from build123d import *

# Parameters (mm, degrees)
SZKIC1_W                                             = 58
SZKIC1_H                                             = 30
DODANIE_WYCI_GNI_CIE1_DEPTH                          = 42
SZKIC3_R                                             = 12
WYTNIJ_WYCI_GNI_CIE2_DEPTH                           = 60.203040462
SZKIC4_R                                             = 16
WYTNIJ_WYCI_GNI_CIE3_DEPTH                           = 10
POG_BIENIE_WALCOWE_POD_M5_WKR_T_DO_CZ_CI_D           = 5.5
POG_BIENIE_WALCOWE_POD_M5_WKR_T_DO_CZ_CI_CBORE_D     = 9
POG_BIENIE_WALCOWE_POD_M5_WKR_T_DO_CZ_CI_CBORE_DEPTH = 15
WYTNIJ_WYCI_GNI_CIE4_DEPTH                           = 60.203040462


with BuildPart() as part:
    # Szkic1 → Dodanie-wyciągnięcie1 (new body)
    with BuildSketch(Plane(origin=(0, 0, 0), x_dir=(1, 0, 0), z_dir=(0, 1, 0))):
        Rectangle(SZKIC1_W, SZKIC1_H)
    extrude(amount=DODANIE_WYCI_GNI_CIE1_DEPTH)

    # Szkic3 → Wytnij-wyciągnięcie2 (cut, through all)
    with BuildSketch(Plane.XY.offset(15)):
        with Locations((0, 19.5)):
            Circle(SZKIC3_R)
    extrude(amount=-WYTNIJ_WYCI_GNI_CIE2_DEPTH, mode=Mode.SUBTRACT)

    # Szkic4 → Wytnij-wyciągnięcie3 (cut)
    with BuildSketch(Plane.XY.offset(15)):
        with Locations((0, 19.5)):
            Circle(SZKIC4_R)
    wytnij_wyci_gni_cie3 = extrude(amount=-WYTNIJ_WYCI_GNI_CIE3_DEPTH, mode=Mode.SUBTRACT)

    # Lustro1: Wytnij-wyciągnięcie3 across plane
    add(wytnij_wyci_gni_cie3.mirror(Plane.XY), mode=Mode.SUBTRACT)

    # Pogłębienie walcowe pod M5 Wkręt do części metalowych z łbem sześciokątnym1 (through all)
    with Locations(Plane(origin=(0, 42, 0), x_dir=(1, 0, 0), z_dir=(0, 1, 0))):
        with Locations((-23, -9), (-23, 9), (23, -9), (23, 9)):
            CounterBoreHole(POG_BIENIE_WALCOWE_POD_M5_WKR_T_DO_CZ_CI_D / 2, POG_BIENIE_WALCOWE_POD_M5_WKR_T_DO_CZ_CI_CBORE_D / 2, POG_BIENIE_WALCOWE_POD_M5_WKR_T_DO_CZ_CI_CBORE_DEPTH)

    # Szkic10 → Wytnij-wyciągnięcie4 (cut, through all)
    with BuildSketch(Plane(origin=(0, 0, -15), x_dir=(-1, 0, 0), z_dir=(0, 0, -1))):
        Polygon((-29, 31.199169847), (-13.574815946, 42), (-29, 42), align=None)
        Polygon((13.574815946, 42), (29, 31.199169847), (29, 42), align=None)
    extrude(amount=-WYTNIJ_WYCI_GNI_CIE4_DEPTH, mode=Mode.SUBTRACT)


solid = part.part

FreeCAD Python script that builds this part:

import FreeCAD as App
import Part
import Sketcher

V = App.Vector
Q = App.Units.Quantity

doc = App.newDocument("Part")
params = doc.addObject("Spreadsheet::Sheet", "Params")
for row, (alias, value) in enumerate([
    ("sketch1_width", "58 mm"),
    ("sketch1_height", "30 mm"),
    ("pad1_length", "42 mm"),
    ("sketch2_diameter", "24 mm"),
    ("sketch3_diameter", "32 mm"),
    ("pocket2_length", "10 mm"),
    ("sketch4_diameter", "5.5 mm"),
    ("hole_diameter", "5.5 mm"),
    ("hole_cbore_diameter", "9 mm"),
    ("hole_cbore_depth", "15 mm"),
], start=1):
    params.set(f"A{row}", alias)
    params.set(f"B{row}", "=" + value)
    params.setAlias(f"B{row}", alias)

body = doc.addObject("PartDesign::Body", "Body")

sketch1 = body.newObject("Sketcher::SketchObject", "Sketch")
sketch1.AttachmentSupport = (doc.getObject("XZ_Plane"), [""])
sketch1.MapMode = "FlatFace"
sketch1.addGeometry([
    Part.LineSegment(V(-29, -15, 0), V(-29, 15, 0)),
    Part.LineSegment(V(-29, 15, 0), V(29, 15, 0)),
    Part.LineSegment(V(29, 15, 0), V(29, -15, 0)),
    Part.LineSegment(V(29, -15, 0), V(-29, -15, 0)),
], False)
sketch1.addConstraint([
    Sketcher.Constraint("Coincident", 0, 2, 1, 1),
    Sketcher.Constraint("Coincident", 1, 2, 2, 1),
    Sketcher.Constraint("Coincident", 2, 2, 3, 1),
    Sketcher.Constraint("Coincident", 3, 2, 0, 1),
    Sketcher.Constraint("Vertical", 0),
    Sketcher.Constraint("Horizontal", 1),
    Sketcher.Constraint("Vertical", 2),
    Sketcher.Constraint("Horizontal", 3),
    Sketcher.Constraint("Symmetric", 0, 2, 2, 2, -1, 1),
    Sketcher.Constraint("DistanceX", 1, 1, 1, 2, 58.0),
    Sketcher.Constraint("DistanceY", 0, 1, 0, 2, 30.0),
])
sketch1.setExpression("Constraints[9]", "Params.sketch1_width")
sketch1.setExpression("Constraints[10]", "Params.sketch1_height")
pad1 = body.newObject("PartDesign::Pad", "Pad")
pad1.Profile = sketch1
pad1.setExpression("Length", "Params.pad1_length")
pad1.Reversed = True

sketch2 = body.newObject("Sketcher::SketchObject", "Sketch001")
sketch2.AttachmentSupport = (doc.getObject("XY_Plane"), [""])
sketch2.MapMode = "FlatFace"
sketch2.AttachmentOffset = App.Placement(V(0, 0, 15), App.Rotation())
sketch2.addGeometry(Part.Circle(V(0, 19.5, 0), V(0, 0, 1), 12), False)
sketch2.addConstraint([
    Sketcher.Constraint("PointOnObject", 0, 3, -2),
    Sketcher.Constraint("Diameter", 0, 24.0),
    Sketcher.Constraint("DistanceY", -1, 1, 0, 3, 19.5),
])
sketch2.setExpression("Constraints[1]", "Params.sketch2_diameter")
pocket1 = body.newObject("PartDesign::Pocket", "Pocket")
pocket1.Profile = sketch2
pocket1.Type = "ThroughAll"

sketch3 = body.newObject("Sketcher::SketchObject", "Sketch002")
sketch3.AttachmentSupport = (doc.getObject("XY_Plane"), [""])
sketch3.MapMode = "FlatFace"
sketch3.AttachmentOffset = App.Placement(V(0, 0, 15), App.Rotation())
sketch3.addGeometry(Part.Circle(V(0, 19.5, 0), V(0, 0, 1), 16), False)
sketch3.addConstraint([
    Sketcher.Constraint("PointOnObject", 0, 3, -2),
    Sketcher.Constraint("Diameter", 0, 32.0),
    Sketcher.Constraint("DistanceY", -1, 1, 0, 3, 19.5),
])
sketch3.setExpression("Constraints[1]", "Params.sketch3_diameter")
pocket2 = body.newObject("PartDesign::Pocket", "Pocket001")
pocket2.Profile = sketch3
pocket2.setExpression("Length", "Params.pocket2_length")
doc.recompute()

mirrored = body.newObject("PartDesign::Mirrored", "Mirrored")
mirrored.Originals = [pocket2]
mirrored.MirrorPlane = (doc.getObject("XY_Plane"), [""])
body.Tip = mirrored

sketch4 = body.newObject("Sketcher::SketchObject", "Sketch003")
sketch4.AttachmentSupport = (doc.getObject("XZ_Plane"), [""])
sketch4.MapMode = "FlatFace"
sketch4.AttachmentOffset = App.Placement(V(0, 0, -42), App.Rotation())
sketch4.addGeometry([
    Part.Circle(V(-23, 9, 0), V(0, 0, 1), 2.75),
    Part.Circle(V(-23, -9, 0), V(0, 0, 1), 2.75),
    Part.Circle(V(23, 9, 0), V(0, 0, 1), 2.75),
    Part.Circle(V(23, -9, 0), V(0, 0, 1), 2.75),
], False)
sketch4.addConstraint([
    Sketcher.Constraint("Equal", 0, 1),
    Sketcher.Constraint("Equal", 1, 2),
    Sketcher.Constraint("Equal", 2, 3),
    Sketcher.Constraint("Symmetric", 1, 3, 2, 3, -1, 1),
    Sketcher.Constraint("Symmetric", 0, 3, 3, 3, -1, 1),
    Sketcher.Constraint("Symmetric", 0, 3, 2, 3, -2),
    Sketcher.Constraint("Diameter", 0, 5.5),
    Sketcher.Constraint("DistanceX", 0, 3, -1, 1, 23.0),
    Sketcher.Constraint("DistanceY", -1, 1, 0, 3, 9.0),
])
sketch4.setExpression("Constraints[6]", "Params.sketch4_diameter")
doc.recompute()
hole = body.newObject("PartDesign::Hole", "Hole")
hole.Profile = sketch4
hole.ThreadType = "None"
hole.setExpression("Diameter", "Params.hole_diameter")
hole.DepthType = "ThroughAll"
hole.HoleCutType = "Counterbore"
hole.setExpression("HoleCutDiameter", "Params.hole_cbore_diameter")
hole.setExpression("HoleCutDepth", "Params.hole_cbore_depth")
hole.Reversed = True

sketch5 = body.newObject("Sketcher::SketchObject", "Sketch004")
sketch5.AttachmentSupport = (doc.getObject("XY_Plane"), [""])
sketch5.MapMode = "FlatFace"
sketch5.AttachmentOffset = App.Placement(V(0, 0, -15), App.Rotation())
sketch5.addGeometry([
    Part.LineSegment(V(29, 31.19917, 0), V(13.574816, 42, 0)),
    Part.LineSegment(V(13.574816, 42, 0), V(29, 42, 0)),
    Part.LineSegment(V(29, 42, 0), V(29, 31.19917, 0)),
    Part.LineSegment(V(-13.574816, 42, 0), V(-29, 31.19917, 0)),
    Part.LineSegment(V(-29, 31.19917, 0), V(-29, 42, 0)),
    Part.LineSegment(V(-29, 42, 0), V(-13.574816, 42, 0)),
], False)
sketch5.addConstraint([
    Sketcher.Constraint("Coincident", 0, 2, 1, 1),
    Sketcher.Constraint("Coincident", 1, 2, 2, 1),
    Sketcher.Constraint("Coincident", 2, 2, 0, 1),
    Sketcher.Constraint("Coincident", 3, 2, 4, 1),
    Sketcher.Constraint("Coincident", 4, 2, 5, 1),
    Sketcher.Constraint("Coincident", 5, 2, 3, 1),
    Sketcher.Constraint("Horizontal", 1),
    Sketcher.Constraint("Vertical", 2),
    Sketcher.Constraint("Vertical", 4),
    Sketcher.Constraint("Horizontal", 5),
    Sketcher.Constraint("Symmetric", 2, 2, 3, 2, -2),
    Sketcher.Constraint("Symmetric", 0, 2, 5, 2, -2),
    Sketcher.Constraint("Angle", 0, Q("145 deg")),
    Sketcher.Constraint("DistanceY", -1, 1, 0, 2, 42.0),
    Sketcher.Constraint("DistanceX", -1, 1, 1, 2, 29.0),
    Sketcher.Constraint("DistanceY", 2, 2, 2, 1, 10.80083),
])
pocket3 = body.newObject("PartDesign::Pocket", "Pocket002")
pocket3.Profile = sketch5
pocket3.Type = "ThroughAll"
pocket3.Reversed = True

doc.recompute()
